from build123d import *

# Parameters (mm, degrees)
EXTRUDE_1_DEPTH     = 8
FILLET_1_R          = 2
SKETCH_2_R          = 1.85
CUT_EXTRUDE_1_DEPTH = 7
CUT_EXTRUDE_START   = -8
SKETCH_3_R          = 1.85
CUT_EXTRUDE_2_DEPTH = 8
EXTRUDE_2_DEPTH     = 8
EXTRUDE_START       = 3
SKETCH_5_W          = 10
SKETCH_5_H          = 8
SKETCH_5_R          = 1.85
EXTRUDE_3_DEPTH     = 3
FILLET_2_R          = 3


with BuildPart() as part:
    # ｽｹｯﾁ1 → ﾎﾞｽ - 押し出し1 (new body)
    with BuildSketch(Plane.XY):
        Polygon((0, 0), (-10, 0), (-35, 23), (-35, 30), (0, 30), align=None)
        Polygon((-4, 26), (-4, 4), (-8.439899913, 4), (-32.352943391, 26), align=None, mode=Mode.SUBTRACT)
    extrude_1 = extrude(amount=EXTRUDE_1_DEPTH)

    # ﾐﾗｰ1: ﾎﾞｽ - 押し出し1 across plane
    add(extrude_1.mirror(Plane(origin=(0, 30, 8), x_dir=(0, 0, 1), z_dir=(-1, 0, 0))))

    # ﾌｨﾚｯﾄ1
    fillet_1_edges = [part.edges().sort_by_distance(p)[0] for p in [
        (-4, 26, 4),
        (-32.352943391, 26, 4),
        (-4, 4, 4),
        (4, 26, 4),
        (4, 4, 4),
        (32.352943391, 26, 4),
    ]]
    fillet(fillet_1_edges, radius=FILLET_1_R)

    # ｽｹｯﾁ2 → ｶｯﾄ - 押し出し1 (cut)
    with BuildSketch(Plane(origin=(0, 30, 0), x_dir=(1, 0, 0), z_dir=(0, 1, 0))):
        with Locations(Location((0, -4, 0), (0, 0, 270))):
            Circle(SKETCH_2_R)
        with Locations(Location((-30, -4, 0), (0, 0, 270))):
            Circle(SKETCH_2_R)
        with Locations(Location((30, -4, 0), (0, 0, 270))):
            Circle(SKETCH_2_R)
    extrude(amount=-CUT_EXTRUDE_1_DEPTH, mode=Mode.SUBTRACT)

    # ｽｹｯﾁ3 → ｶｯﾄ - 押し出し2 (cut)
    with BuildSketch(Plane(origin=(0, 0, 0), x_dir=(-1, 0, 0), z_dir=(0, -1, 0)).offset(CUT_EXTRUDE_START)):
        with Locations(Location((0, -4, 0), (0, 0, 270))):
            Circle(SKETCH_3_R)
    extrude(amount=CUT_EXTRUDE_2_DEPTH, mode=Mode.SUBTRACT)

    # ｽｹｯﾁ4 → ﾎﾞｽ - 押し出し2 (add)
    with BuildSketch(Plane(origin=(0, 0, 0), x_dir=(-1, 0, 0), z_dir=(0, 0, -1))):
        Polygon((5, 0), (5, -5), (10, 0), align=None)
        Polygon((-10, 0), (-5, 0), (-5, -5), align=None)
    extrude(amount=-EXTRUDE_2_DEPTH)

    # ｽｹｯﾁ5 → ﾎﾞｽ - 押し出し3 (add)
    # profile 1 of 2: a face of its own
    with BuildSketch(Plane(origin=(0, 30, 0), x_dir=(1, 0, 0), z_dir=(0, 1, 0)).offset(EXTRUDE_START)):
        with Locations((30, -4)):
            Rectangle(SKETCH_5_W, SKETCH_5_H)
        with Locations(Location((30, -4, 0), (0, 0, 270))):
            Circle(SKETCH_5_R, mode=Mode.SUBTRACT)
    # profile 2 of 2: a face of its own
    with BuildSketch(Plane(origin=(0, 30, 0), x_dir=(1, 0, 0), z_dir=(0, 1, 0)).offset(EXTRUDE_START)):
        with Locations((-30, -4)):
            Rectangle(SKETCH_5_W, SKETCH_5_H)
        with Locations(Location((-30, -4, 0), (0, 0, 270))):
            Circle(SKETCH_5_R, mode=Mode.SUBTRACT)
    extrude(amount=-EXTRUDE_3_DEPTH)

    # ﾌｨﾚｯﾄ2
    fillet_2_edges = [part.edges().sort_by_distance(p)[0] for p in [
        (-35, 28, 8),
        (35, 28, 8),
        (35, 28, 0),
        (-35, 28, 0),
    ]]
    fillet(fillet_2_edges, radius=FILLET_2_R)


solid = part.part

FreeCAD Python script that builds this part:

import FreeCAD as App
import Part
import Sketcher
from FreeCAD import Vector


def edges_at(feature, points):
    """Names of the edges that pass closest to the given points."""
    edges = feature.Shape.Edges
    near = lambda p: min(range(len(edges)), key=lambda i: edges[i].distToShape(Part.Vertex(*p))[0])
    return sorted({f"Edge{near(p) + 1}" for p in points})

doc = App.newDocument("Part")
body = doc.addObject("PartDesign::Body", "Body")

# Sketch on XY plane
sketch1 = body.newObject("Sketcher::SketchObject", "Sketch")
sketch1.AttachmentSupport = (doc.getObject("XY_Plane"), [""])
sketch1.MapMode = "FlatFace"
sketch1.addGeometry(Part.LineSegment(Vector(-10, 0, 0), Vector(0, 0, 0)), False)
sketch1.addGeometry(Part.LineSegment(Vector(0, 0, 0), Vector(0, 30, 0)), False)
sketch1.addGeometry(Part.LineSegment(Vector(0, 30, 0), Vector(-35, 30, 0)), False)
sketch1.addGeometry(Part.LineSegment(Vector(-35, 30, 0), Vector(-35, 23, 0)), False)
sketch1.addGeometry(Part.LineSegment(Vector(-35, 23, 0), Vector(-10, 0, 0)), False)
sketch1.addGeometry(Part.LineSegment(Vector(-4, 26, 0), Vector(-4, 4, 0)), False)
sketch1.addGeometry(Part.LineSegment(Vector(-4, 4, 0), Vector(-8.4, 4, 0)), False)
sketch1.addGeometry(Part.LineSegment(Vector(-8.4, 4, 0), Vector(-32.4, 26, 0)), False)
sketch1.addGeometry(Part.LineSegment(Vector(-32.4, 26, 0), Vector(-4, 26, 0)), False)
sketch1.addConstraint(Sketcher.Constraint("Coincident", 0, 2, 1, 1))
sketch1.addConstraint(Sketcher.Constraint("Coincident", 1, 2, 2, 1))
sketch1.addConstraint(Sketcher.Constraint("Coincident", 2, 2, 3, 1))
sketch1.addConstraint(Sketcher.Constraint("Coincident", 3, 2, 4, 1))
sketch1.addConstraint(Sketcher.Constraint("Coincident", 4, 2, 0, 1))
sketch1.addConstraint(Sketcher.Constraint("Coincident", 5, 2, 6, 1))
sketch1.addConstraint(Sketcher.Constraint("Coincident", 6, 2, 7, 1))
sketch1.addConstraint(Sketcher.Constraint("Coincident", 7, 2, 8, 1))
sketch1.addConstraint(Sketcher.Constraint("Coincident", 8, 2, 5, 1))
sketch1.addConstraint(Sketcher.Constraint("Horizontal", 0))
sketch1.addConstraint(Sketcher.Constraint("Vertical", 1))
sketch1.addConstraint(Sketcher.Constraint("Horizontal", 2))
sketch1.addConstraint(Sketcher.Constraint("Vertical", 3))
sketch1.addConstraint(Sketcher.Constraint("Vertical", 5))
sketch1.addConstraint(Sketcher.Constraint("Horizontal", 6))
sketch1.addConstraint(Sketcher.Constraint("Horizontal", 8))
sketch1.addConstraint(Sketcher.Constraint("Coincident", 0, 2, -1, 1))
sketch1.addConstraint(Sketcher.Constraint("Parallel", 4, 7))
sketch1.addConstraint(Sketcher.Constraint("DistanceX", 0, 1, 0, 2, 10.0))
sketch1.addConstraint(Sketcher.Constraint("DistanceX", 2, 2, 2, 1, 35.0))
sketch1.addConstraint(Sketcher.Constraint("DistanceY", 1, 1, 1, 2, 30.0))
sketch1.addConstraint(Sketcher.Constraint("DistanceY", 3, 2, 3, 1, 7.0))
sketch1.addConstraint(Sketcher.Constraint("DistanceY", 5, 2, 5, 1, 22.0))
sketch1.addConstraint(Sketcher.Constraint("DistanceX", 5, 2, -1, 1, 4.0))
sketch1.addConstraint(Sketcher.Constraint("DistanceY", -1, 1, 5, 2, 4.0))
sketch1.addConstraint(Sketcher.Constraint("DistanceX", 6, 2, 6, 1, 4.4399))
pad1 = body.newObject("PartDesign::Pad", "Pad")
pad1.Profile = sketch1
pad1.Length = 8
doc.recompute()

mirrored = body.newObject("PartDesign::Mirrored", "Mirrored")
mirrored.Originals = [pad1]
mirrored.MirrorPlane = (doc.getObject("YZ_Plane"), [""])
body.Tip = mirrored
doc.recompute()

fillet = body.newObject("PartDesign::Fillet", "Fillet")
fillet.Base = (mirrored, edges_at(mirrored, [
    (-4, 26, 4),
    (-32.353, 26, 4),
    (-4, 4, 4),
    (4, 26, 4),
    (4, 4, 4),
    (32.353, 26, 4),
]))
fillet.Radius = 2

# Sketch on XZ plane
sketch2 = body.newObject("Sketcher::SketchObject", "Sketch001")
sketch2.AttachmentSupport = (doc.getObject("XZ_Plane"), [""])
sketch2.MapMode = "FlatFace"
sketch2.AttachmentOffset = App.Placement(Vector(0, 0, -30), App.Rotation())
sketch2.addGeometry(Part.Circle(Vector(0, 4, 0), Vector(0, 0, 1), 1.9), False)
sketch2.addGeometry(Part.Circle(Vector(-30, 4, 0), Vector(0, 0, 1), 1.9), False)
sketch2.addGeometry(Part.Circle(Vector(30, 4, 0), Vector(0, 0, 1), 1.9), False)
sketch2.addConstraint(Sketcher.Constraint("Equal", 0, 1))
sketch2.addConstraint(Sketcher.Constraint("Equal", 1, 2))
sketch2.addConstraint(Sketcher.Constraint("Symmetric", 1, 3, 2, 3, -2))
sketch2.addConstraint(Sketcher.Constraint("PointOnObject", 0, 3, -2))
sketch2.addConstraint(Sketcher.Constraint("Horizontal", 0, 3, 1, 3))
sketch2.addConstraint(Sketcher.Constraint("Diameter", 0, 3.7))
sketch2.addConstraint(Sketcher.Constraint("DistanceY", -1, 1, 0, 3, 4.0))
sketch2.addConstraint(Sketcher.Constraint("DistanceX", 1, 3, -1, 1, 30.0))
pocket1 = body.newObject("PartDesign::Pocket", "Pocket")
pocket1.Profile = sketch2
pocket1.Length = 7
pocket1.Reversed = True

# Sketch on XZ plane
sketch3 = body.newObject("Sketcher::SketchObject", "Sketch002")
sketch3.AttachmentSupport = (doc.getObject("XZ_Plane"), [""])
sketch3.MapMode = "FlatFace"
sketch3.AttachmentOffset = App.Placement(Vector(0, 0, -8), App.Rotation())
sketch3.addGeometry(Part.Circle(Vector(0, 4, 0), Vector(0, 0, 1), 1.9), False)
sketch3.addConstraint(Sketcher.Constraint("PointOnObject", 0, 3, -2))
sketch3.addConstraint(Sketcher.Constraint("Diameter", 0, 3.7))
sketch3.addConstraint(Sketcher.Constraint("DistanceY", -1, 1, 0, 3, 4.0))
pocket2 = body.newObject("PartDesign::Pocket", "Pocket001")
pocket2.Profile = sketch3
pocket2.Length = 8
pocket2.Reversed = True

# Sketch on XY plane
sketch4 = body.newObject("Sketcher::SketchObject", "Sketch003")
sketch4.AttachmentSupport = (doc.getObject("XY_Plane"), [""])
sketch4.MapMode = "FlatFace"
sketch4.addGeometry(Part.LineSegment(Vector(-5, 0, 0), Vector(-5, -5, 0)), False)
sketch4.addGeometry(Part.LineSegment(Vector(-5, -5, 0), Vector(-10, 0, 0)), False)
sketch4.addGeometry(Part.LineSegment(Vector(-10, 0, 0), Vector(-5, 0, 0)), False)
sketch4.addGeometry(Part.LineSegment(Vector(5, 0, 0), Vector(10, 0, 0)), False)
sketch4.addGeometry(Part.LineSegment(Vector(10, 0, 0), Vector(5, -5, 0)), False)
sketch4.addGeometry(Part.LineSegment(Vector(5, -5, 0), Vector(5, 0, 0)), False)
sketch4.addConstraint(Sketcher.Constraint("Coincident", 0, 2, 1, 1))
sketch4.addConstraint(Sketcher.Constraint("Coincident", 1, 2, 2, 1))
sketch4.addConstraint(Sketcher.Constraint("Coincident", 2, 2, 0, 1))
sketch4.addConstraint(Sketcher.Constraint("Coincident", 3, 2, 4, 1))
sketch4.addConstraint(Sketcher.Constraint("Coincident", 4, 2, 5, 1))
sketch4.addConstraint(Sketcher.Constraint("Coincident", 5, 2, 3, 1))
sketch4.addConstraint(Sketcher.Constraint("Vertical", 0))
sketch4.addConstraint(Sketcher.Constraint("Horizontal", 2))
sketch4.addConstraint(Sketcher.Constraint("Horizontal", 3))
sketch4.addConstraint(Sketcher.Constraint("Vertical", 5))
sketch4.addConstraint(Sketcher.Constraint("Symmetric", 1, 2, 3, 2, -1, 1))
sketch4.addConstraint(Sketcher.Constraint("Symmetric", 0, 2, 4, 2, -2))
sketch4.addConstraint(Sketcher.Constraint("PointOnObject", 1, 2, -1))
sketch4.addConstraint(Sketcher.Constraint("Perpendicular", 1, 4))
sketch4.addConstraint(Sketcher.Constraint("DistanceX", 2, 1, 2, 2, 5.0))
sketch4.addConstraint(Sketcher.Constraint("DistanceX", 0, 2, -1, 1, 5.0))
pad2 = body.newObject("PartDesign::Pad", "Pad001")
pad2.Profile = sketch4
pad2.Length = 8

# Sketch on XZ plane
sketch5 = body.newObject("Sketcher::SketchObject", "Sketch004")
sketch5.AttachmentSupport = (doc.getObject("XZ_Plane"), [""])
sketch5.MapMode = "FlatFace"
sketch5.AttachmentOffset = App.Placement(Vector(0, 0, -33), App.Rotation())
sketch5.addGeometry(Part.LineSegment(Vector(25, 0, 0), Vector(25, 8, 0)), False)
sketch5.addGeometry(Part.LineSegment(Vector(25, 8, 0), Vector(35, 8, 0)), False)
sketch5.addGeometry(Part.LineSegment(Vector(35, 8, 0), Vector(35, 0, 0)), False)
sketch5.addGeometry(Part.LineSegment(Vector(35, 0, 0), Vector(25, 0, 0)), False)
sketch5.addGeometry(Part.Circle(Vector(30, 4, 0), Vector(0, 0, 1), 1.9), False)
sketch5.addGeometry(Part.LineSegment(Vector(-35, 0, 0), Vector(-35, 8, 0)), False)
sketch5.addGeometry(Part.LineSegment(Vector(-35, 8, 0), Vector(-25, 8, 0)), False)
sketch5.addGeometry(Part.LineSegment(Vector(-25, 8, 0), Vector(-25, 0, 0)), False)
sketch5.addGeometry(Part.LineSegment(Vector(-25, 0, 0), Vector(-35, 0, 0)), False)
sketch5.addGeometry(Part.Circle(Vector(-30, 4, 0), Vector(0, 0, 1), 1.9), False)
sketch5.addConstraint(Sketcher.Constraint("Coincident", 0, 2, 1, 1))
sketch5.addConstraint(Sketcher.Constraint("Coincident", 1, 2, 2, 1))
sketch5.addConstraint(Sketcher.Constraint("Coincident", 2, 2, 3, 1))
sketch5.addConstraint(Sketcher.Constraint("Coincident", 3, 2, 0, 1))
sketch5.addConstraint(Sketcher.Constraint("Coincident", 5, 2, 6, 1))
sketch5.addConstraint(Sketcher.Constraint("Coincident", 6, 2, 7, 1))
sketch5.addConstraint(Sketcher.Constraint("Coincident", 7, 2, 8, 1))
sketch5.addConstraint(Sketcher.Constraint("Coincident", 8, 2, 5, 1))
sketch5.addConstraint(Sketcher.Constraint("Vertical", 0))
sketch5.addConstraint(Sketcher.Constraint("Horizontal", 1))
sketch5.addConstraint(Sketcher.Constraint("Vertical", 2))
sketch5.addConstraint(Sketcher.Constraint("Horizontal", 3))
sketch5.addConstraint(Sketcher.Constraint("Vertical", 5))
sketch5.addConstraint(Sketcher.Constraint("Horizontal", 6))
sketch5.addConstraint(Sketcher.Constraint("Vertical", 7))
sketch5.addConstraint(Sketcher.Constraint("Horizontal", 8))
sketch5.addConstraint(Sketcher.Constraint("Equal", 4, 9))
sketch5.addConstraint(Sketcher.Constraint("Symmetric", 3, 2, 7, 2, -1, 1))
sketch5.addConstraint(Sketcher.Constraint("Symmetric", 4, 3, 9, 3, -2))
sketch5.addConstraint(Sketcher.Constraint("Symmetric", 1, 2, 5, 2, -2))
sketch5.addConstraint(Sketcher.Constraint("PointOnObject", 2, 2, -1))
sketch5.addConstraint(Sketcher.Constraint("Diameter", 4, 3.7))
sketch5.addConstraint(Sketcher.Constraint("DistanceX", 1, 1, 1, 2, 10.0))
sketch5.addConstraint(Sketcher.Constraint("DistanceY", 0, 1, 0, 2, 8.0))
sketch5.addConstraint(Sketcher.Constraint("DistanceX", -1, 1, 4, 3, 30.0))
sketch5.addConstraint(Sketcher.Constraint("DistanceY", -1, 1, 4, 3, 4.0))
sketch5.addConstraint(Sketcher.Constraint("DistanceX", -1, 1, 0, 2, 25.0))
pad3 = body.newObject("PartDesign::Pad", "Pad002")
pad3.Profile = sketch5
pad3.Length = 3
doc.recompute()

fillet2 = body.newObject("PartDesign::Fillet", "Fillet001")
fillet2.Base = (pad3, edges_at(pad3, [
    (-35, 28, 8),
    (35, 28, 8),
    (35, 28, 0),
    (-35, 28, 0),
]))
fillet2.Radius = 3

doc.recompute()
